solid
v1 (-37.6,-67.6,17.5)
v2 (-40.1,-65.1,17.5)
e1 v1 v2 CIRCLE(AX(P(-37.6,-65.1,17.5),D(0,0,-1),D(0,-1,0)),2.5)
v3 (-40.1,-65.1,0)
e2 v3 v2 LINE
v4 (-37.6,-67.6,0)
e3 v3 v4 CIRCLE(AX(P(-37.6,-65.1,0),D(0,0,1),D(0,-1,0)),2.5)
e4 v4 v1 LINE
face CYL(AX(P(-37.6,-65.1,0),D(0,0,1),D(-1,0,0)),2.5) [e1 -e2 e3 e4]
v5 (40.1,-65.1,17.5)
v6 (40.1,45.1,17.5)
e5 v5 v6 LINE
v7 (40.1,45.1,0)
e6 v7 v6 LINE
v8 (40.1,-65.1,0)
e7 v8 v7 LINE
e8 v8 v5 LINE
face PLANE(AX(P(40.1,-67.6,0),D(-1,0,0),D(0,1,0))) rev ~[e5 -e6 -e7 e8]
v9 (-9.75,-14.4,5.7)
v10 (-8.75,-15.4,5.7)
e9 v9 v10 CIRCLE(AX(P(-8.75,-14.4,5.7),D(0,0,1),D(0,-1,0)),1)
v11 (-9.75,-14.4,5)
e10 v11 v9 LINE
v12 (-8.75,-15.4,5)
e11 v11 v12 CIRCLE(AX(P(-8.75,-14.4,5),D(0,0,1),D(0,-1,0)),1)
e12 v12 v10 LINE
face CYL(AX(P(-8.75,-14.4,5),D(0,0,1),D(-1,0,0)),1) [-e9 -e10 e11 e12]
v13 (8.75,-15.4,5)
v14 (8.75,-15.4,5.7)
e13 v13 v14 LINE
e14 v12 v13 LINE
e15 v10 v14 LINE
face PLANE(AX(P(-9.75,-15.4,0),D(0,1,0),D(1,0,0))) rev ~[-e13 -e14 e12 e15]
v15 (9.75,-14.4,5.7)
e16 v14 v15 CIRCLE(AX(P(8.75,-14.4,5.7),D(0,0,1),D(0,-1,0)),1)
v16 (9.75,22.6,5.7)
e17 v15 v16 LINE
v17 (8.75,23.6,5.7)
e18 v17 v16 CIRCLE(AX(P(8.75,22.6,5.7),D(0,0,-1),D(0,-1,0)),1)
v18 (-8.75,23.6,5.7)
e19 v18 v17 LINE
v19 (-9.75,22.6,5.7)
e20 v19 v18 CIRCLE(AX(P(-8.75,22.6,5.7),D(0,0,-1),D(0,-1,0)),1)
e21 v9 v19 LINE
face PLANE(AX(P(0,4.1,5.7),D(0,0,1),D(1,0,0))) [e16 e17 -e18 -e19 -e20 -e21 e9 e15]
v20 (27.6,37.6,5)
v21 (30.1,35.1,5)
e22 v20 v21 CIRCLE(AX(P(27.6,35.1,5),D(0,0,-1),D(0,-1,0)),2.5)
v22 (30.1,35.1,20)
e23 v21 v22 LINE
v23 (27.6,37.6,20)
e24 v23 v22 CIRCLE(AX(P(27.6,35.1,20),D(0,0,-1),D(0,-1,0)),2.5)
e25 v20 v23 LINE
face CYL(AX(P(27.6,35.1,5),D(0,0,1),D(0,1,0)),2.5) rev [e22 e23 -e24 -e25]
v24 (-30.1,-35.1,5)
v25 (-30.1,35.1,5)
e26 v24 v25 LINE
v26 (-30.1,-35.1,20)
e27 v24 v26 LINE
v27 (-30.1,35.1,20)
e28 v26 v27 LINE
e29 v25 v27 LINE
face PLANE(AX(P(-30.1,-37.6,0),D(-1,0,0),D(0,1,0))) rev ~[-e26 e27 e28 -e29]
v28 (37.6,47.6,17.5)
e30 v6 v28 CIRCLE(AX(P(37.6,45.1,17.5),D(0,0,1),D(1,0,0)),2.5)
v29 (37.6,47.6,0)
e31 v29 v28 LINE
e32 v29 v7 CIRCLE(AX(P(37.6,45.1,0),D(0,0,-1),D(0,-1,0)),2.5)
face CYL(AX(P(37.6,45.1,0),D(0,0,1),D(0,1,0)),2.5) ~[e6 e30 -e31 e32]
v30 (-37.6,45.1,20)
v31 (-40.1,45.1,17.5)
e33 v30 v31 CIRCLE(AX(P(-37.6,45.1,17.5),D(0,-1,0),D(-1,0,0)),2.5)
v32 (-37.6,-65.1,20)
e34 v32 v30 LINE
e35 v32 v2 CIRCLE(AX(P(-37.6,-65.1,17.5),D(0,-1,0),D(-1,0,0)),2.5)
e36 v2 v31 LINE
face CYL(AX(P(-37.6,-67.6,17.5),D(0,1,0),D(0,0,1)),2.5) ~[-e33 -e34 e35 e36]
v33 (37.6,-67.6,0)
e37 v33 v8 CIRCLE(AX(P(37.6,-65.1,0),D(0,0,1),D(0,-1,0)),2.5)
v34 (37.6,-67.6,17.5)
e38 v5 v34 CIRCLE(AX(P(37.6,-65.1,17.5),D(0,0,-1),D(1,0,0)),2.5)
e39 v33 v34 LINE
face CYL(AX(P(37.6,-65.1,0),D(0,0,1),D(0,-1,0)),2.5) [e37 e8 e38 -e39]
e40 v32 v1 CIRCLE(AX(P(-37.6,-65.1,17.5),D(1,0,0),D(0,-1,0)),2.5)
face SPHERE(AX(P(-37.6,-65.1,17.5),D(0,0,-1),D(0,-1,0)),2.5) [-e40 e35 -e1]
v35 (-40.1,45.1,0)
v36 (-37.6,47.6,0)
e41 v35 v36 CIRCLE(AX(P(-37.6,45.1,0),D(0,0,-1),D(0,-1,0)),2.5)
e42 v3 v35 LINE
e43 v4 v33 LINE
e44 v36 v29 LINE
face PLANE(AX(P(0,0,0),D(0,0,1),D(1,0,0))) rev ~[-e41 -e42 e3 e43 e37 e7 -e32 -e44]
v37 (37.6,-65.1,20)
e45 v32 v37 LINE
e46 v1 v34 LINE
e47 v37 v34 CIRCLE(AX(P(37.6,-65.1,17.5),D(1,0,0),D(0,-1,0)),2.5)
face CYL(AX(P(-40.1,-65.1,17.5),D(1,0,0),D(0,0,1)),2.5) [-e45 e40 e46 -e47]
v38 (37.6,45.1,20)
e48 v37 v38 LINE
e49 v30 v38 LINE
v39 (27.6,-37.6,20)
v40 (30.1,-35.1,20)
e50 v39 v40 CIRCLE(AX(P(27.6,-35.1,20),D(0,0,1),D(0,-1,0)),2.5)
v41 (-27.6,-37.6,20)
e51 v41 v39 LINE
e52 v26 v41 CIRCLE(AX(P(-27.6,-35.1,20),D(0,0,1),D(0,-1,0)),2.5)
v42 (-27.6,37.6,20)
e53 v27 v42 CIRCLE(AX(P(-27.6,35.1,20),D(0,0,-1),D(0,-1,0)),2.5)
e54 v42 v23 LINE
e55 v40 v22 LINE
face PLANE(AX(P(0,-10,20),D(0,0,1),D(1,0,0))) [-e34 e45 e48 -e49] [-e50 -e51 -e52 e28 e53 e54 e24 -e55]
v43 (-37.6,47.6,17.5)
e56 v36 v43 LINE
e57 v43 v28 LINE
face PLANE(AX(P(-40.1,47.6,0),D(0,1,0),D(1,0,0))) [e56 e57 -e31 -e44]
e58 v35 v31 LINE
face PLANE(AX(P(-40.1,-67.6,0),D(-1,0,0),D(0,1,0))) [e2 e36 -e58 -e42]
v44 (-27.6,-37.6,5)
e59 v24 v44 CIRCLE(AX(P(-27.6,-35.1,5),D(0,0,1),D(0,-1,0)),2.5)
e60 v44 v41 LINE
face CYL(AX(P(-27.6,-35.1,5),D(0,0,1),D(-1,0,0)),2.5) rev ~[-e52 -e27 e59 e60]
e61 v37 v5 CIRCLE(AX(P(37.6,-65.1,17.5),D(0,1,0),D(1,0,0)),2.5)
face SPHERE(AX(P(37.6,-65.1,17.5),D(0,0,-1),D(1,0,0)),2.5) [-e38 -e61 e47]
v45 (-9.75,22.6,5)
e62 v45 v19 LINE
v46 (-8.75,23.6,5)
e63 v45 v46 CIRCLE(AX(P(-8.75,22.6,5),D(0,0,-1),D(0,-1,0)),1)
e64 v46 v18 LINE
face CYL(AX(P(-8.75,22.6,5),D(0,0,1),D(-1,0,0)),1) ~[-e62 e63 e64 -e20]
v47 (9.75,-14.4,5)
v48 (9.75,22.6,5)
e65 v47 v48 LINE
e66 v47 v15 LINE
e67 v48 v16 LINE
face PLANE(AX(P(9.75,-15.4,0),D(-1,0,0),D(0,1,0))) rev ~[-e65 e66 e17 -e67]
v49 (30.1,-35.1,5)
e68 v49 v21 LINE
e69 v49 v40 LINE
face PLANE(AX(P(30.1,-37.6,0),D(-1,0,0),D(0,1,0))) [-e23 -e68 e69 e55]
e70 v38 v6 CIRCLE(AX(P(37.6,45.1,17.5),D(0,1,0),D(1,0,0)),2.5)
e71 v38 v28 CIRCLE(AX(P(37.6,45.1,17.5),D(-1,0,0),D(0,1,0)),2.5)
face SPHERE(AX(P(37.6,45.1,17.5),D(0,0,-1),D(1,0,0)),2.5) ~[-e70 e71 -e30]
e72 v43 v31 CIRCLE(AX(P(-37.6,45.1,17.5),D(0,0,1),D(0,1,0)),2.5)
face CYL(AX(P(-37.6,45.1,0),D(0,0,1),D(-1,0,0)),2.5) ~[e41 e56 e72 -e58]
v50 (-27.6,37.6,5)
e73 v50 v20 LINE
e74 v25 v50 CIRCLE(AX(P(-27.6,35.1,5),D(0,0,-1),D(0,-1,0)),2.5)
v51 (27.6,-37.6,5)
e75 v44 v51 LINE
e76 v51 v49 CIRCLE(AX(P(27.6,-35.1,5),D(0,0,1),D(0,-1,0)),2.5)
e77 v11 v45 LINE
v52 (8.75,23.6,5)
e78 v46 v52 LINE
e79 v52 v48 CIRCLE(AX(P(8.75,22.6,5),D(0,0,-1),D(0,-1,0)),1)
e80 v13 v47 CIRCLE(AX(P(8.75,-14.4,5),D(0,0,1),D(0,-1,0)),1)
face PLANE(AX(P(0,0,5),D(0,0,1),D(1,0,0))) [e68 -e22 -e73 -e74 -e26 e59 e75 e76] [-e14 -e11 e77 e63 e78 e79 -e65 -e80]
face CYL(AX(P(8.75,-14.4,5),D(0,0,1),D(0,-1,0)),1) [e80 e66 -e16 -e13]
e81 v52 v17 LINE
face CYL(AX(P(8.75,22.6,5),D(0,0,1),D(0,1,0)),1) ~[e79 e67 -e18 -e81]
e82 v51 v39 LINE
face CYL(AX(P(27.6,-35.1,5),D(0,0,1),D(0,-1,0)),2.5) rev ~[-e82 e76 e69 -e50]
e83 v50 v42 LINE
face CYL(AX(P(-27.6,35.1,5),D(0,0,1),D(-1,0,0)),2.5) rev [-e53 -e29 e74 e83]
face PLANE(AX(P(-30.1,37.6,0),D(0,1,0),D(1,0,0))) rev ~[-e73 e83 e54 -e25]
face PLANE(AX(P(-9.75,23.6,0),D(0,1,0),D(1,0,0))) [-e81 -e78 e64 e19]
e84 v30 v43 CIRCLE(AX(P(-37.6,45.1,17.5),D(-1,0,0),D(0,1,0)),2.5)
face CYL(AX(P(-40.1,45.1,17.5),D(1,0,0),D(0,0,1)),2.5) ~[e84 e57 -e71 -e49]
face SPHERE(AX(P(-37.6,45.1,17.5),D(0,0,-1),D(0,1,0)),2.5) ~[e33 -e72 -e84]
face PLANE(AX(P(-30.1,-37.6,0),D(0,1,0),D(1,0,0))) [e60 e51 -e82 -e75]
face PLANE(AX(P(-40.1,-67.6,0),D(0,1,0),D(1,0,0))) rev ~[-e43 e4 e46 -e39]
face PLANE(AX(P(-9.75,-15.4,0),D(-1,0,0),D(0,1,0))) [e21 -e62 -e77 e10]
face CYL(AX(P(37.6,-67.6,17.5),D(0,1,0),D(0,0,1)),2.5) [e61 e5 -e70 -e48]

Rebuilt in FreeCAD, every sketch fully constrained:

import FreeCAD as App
import Part
import Sketcher
from FreeCAD import Vector
Q = App.Units.Quantity


def edges_at(feature, points):
    """Names of the edges that pass closest to the given points."""
    edges = feature.Shape.Edges
    near = lambda p: min(range(len(edges)), key=lambda i: edges[i].distToShape(Part.Vertex(*p))[0])
    return sorted({f"Edge{near(p) + 1}" for p in points})


def add_polygon(sketch, points):
    """Adds a closed chain of lines whose ends are joined by coincident constraints."""
    first, n = sketch.GeometryCount, len(points)
    for a, b in zip(points, points[1:] + points[:1]):
        sketch.addGeometry(Part.LineSegment(App.Vector(*a, 0), App.Vector(*b, 0)), False)
    for i in range(n):
        sketch.addConstraint(Sketcher.Constraint("Coincident", first + i, 2, first + (i + 1) % n, 1))

doc = App.newDocument("Part")
body = doc.addObject("PartDesign::Body", "Body")

# Sketch on XY plane
sketch1 = body.newObject("Sketcher::SketchObject", "Sketch")
sketch1.AttachmentSupport = (doc.getObject("XY_Plane"), [""])
sketch1.MapMode = "FlatFace"
add_polygon(sketch1, [(-40.1, 47.6), (-40.1, -67.6), (40.1, -67.6), (40.1, 47.6)])  # lines 0-3
add_polygon(sketch1, [(30.1, -37.6), (-30.1, -37.6), (-30.1, 37.6), (30.1, 37.6)])  # lines 4-7
sketch1.addConstraint(Sketcher.Constraint("Vertical", 0))
sketch1.addConstraint(Sketcher.Constraint("Horizontal", 1))
sketch1.addConstraint(Sketcher.Constraint("Vertical", 2))
sketch1.addConstraint(Sketcher.Constraint("Horizontal", 3))
sketch1.addConstraint(Sketcher.Constraint("Horizontal", 4))
sketch1.addConstraint(Sketcher.Constraint("Vertical", 5))
sketch1.addConstraint(Sketcher.Constraint("Horizontal", 6))
sketch1.addConstraint(Sketcher.Constraint("Vertical", 7))
sketch1.addConstraint(Sketcher.Constraint("Symmetric", 4, 2, 6, 2, -1, 1))
sketch1.addConstraint(Sketcher.Constraint("DistanceX", 1, 1, 1, 2, Q("80.2 mm")))
sketch1.addConstraint(Sketcher.Constraint("DistanceX", 4, 2, 4, 1, Q("60.2 mm")))
sketch1.addConstraint(Sketcher.Constraint("DistanceY", 0, 2, 0, 1, Q("115.2 mm")))
sketch1.addConstraint(Sketcher.Constraint("DistanceY", 5, 1, 5, 2, Q("75.2 mm")))
sketch1.addConstraint(Sketcher.Constraint("DistanceX", 0, 2, 4, 2, Q("10 mm")))
sketch1.addConstraint(Sketcher.Constraint("DistanceY", 0, 2, 4, 2, Q("30 mm")))
pad1 = body.newObject("PartDesign::Pad", "Pad")
pad1.Profile = sketch1
pad1.Length = 20

# Sketch on XY plane
sketch2 = body.newObject("Sketcher::SketchObject", "Sketch001")
sketch2.AttachmentSupport = (doc.getObject("XY_Plane"), [""])
sketch2.MapMode = "FlatFace"
add_polygon(sketch2, [(-30.1, 37.6), (-30.1, -37.6), (30.1, -37.6), (30.1, 37.6)])  # lines 0-3
add_polygon(sketch2, [(9.75, -15.4), (-9.75, -15.4), (-9.75, 23.6), (9.75, 23.6)])  # lines 4-7
sketch2.addConstraint(Sketcher.Constraint("Vertical", 0))
sketch2.addConstraint(Sketcher.Constraint("Horizontal", 1))
sketch2.addConstraint(Sketcher.Constraint("Vertical", 2))
sketch2.addConstraint(Sketcher.Constraint("Horizontal", 3))
sketch2.addConstraint(Sketcher.Constraint("Horizontal", 4))
sketch2.addConstraint(Sketcher.Constraint("Vertical", 5))
sketch2.addConstraint(Sketcher.Constraint("Horizontal", 6))
sketch2.addConstraint(Sketcher.Constraint("Vertical", 7))
sketch2.addConstraint(Sketcher.Constraint("Symmetric", 0, 2, 2, 2, -1, 1))
sketch2.addConstraint(Sketcher.Constraint("DistanceY", 5, 1, 5, 2, Q("39 mm")))
sketch2.addConstraint(Sketcher.Constraint("DistanceX", 1, 1, 1, 2, Q("60.2 mm")))
sketch2.addConstraint(Sketcher.Constraint("DistanceX", 4, 2, 4, 1, Q("19.5 mm")))
sketch2.addConstraint(Sketcher.Constraint("DistanceY", 0, 2, 0, 1, Q("75.2 mm")))
sketch2.addConstraint(Sketcher.Constraint("DistanceY", 4, 2, 3, 2, Q("53 mm")))
sketch2.addConstraint(Sketcher.Constraint("DistanceX", 4, 2, -1, 1, Q("9.75 mm")))
pad2 = body.newObject("PartDesign::Pad", "Pad001")
pad2.Profile = sketch2
pad2.Length = 5
doc.recompute()

fillet = body.newObject("PartDesign::Fillet", "Fillet")
fillet.Base = (pad2, edges_at(pad2, [
    (-30.1, 37.6, 12.5),
    (30.1, 37.6, 12.5),
    (-30.1, -37.6, 12.5),
    (30.1, -37.6, 12.5),
]))
fillet.Radius = 2.5
doc.recompute()

fillet2 = body.newObject("PartDesign::Fillet", "Fillet001")
fillet2.Base = (fillet, edges_at(fillet, [
    (-40.1, -67.6, 10),
    (40.1, -67.6, 10),
    (40.1, 47.6, 10),
    (-40.1, 47.6, 10),
    (40.1, -10, 20),
    (0, -67.6, 20),
    (0, 47.6, 20),
    (-40.1, -10, 20),
]))
fillet2.Radius = 2.5

# Sketch on XY plane
sketch3 = body.newObject("Sketcher::SketchObject", "Sketch002")
sketch3.AttachmentSupport = (doc.getObject("XY_Plane"), [""])
sketch3.MapMode = "FlatFace"
add_polygon(sketch3, [(-9.75, 23.6), (-9.75, -15.4), (9.75, -15.4), (9.75, 23.6)])  # lines 0-3
sketch3.addConstraint(Sketcher.Constraint("Vertical", 0))
sketch3.addConstraint(Sketcher.Constraint("Horizontal", 1))
sketch3.addConstraint(Sketcher.Constraint("Vertical", 2))
sketch3.addConstraint(Sketcher.Constraint("Horizontal", 3))
sketch3.addConstraint(Sketcher.Constraint("DistanceY", 0, 2, 0, 1, Q("39 mm")))
sketch3.addConstraint(Sketcher.Constraint("DistanceX", 1, 1, 1, 2, Q("19.5 mm")))
sketch3.addConstraint(Sketcher.Constraint("DistanceY", 0, 2, -1, 1, Q("15.4 mm")))
sketch3.addConstraint(Sketcher.Constraint("DistanceX", 0, 2, -1, 1, Q("9.75 mm")))
pad3 = body.newObject("PartDesign::Pad", "Pad002")
pad3.Profile = sketch3
pad3.Length = 5.7
doc.recompute()

fillet3 = body.newObject("PartDesign::Fillet", "Fillet002")
fillet3.Base = (pad3, edges_at(pad3, [
    (-9.75, -15.4, 5.35),
    (9.75, -15.4, 5.35),
    (9.75, 23.6, 5.35),
    (-9.75, 23.6, 5.35),
]))
fillet3.Radius = 1

doc.recompute()
